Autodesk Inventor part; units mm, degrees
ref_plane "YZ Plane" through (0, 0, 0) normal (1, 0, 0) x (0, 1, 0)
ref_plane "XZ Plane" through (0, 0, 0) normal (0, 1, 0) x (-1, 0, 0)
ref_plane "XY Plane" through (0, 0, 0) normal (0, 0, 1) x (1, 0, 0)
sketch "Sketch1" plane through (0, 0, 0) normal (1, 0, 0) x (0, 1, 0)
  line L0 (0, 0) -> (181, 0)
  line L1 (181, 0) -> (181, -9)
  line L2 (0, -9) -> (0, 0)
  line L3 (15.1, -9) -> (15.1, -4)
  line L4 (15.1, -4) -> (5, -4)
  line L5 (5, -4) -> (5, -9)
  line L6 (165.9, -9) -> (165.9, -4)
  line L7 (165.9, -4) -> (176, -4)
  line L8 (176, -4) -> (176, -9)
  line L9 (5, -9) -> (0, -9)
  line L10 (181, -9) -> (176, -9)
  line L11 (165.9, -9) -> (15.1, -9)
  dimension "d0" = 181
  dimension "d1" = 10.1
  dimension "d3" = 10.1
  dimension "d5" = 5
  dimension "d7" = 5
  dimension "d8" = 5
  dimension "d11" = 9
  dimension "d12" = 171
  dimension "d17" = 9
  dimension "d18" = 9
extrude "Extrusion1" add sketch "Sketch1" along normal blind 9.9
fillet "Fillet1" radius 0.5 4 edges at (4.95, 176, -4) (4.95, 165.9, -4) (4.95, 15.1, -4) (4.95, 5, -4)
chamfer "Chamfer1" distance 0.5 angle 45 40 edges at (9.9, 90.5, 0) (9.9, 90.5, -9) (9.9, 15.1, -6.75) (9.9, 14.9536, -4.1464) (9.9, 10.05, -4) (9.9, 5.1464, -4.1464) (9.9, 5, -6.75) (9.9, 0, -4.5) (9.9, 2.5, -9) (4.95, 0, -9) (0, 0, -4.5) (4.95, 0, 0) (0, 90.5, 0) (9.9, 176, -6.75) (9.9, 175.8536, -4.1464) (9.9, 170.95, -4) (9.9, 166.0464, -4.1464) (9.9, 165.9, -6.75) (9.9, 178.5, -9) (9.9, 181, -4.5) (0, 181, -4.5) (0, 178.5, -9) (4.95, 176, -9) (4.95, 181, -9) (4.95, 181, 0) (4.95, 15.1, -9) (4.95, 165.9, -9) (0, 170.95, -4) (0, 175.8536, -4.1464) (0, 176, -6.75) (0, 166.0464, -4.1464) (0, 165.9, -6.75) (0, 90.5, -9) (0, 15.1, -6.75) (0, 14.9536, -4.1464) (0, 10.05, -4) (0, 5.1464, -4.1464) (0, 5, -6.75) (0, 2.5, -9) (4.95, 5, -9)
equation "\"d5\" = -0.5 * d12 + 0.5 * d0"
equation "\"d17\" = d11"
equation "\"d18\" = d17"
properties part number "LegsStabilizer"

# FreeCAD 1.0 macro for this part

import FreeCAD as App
import Part
import Sketcher


def edges_at(feature, points):
    """Names of the edges that pass closest to the given points."""
    edges = feature.Shape.Edges
    near = lambda p: min(range(len(edges)), key=lambda i: edges[i].distToShape(Part.Vertex(*p))[0])
    return sorted({f"Edge{near(p) + 1}" for p in points})


def add_polygon(sketch, points):
    """Adds a closed chain of lines whose ends are joined by coincident constraints."""
    first, n = sketch.GeometryCount, len(points)
    for a, b in zip(points, points[1:] + points[:1]):
        sketch.addGeometry(Part.LineSegment(App.Vector(*a, 0), App.Vector(*b, 0)), False)
    for i in range(n):
        sketch.addConstraint(Sketcher.Constraint("Coincident", first + i, 2, first + (i + 1) % n, 1))

doc = App.newDocument("Part")
body = doc.addObject("PartDesign::Body", "Body")

sketch1 = body.newObject("Sketcher::SketchObject", "Sketch")
sketch1.AttachmentSupport = (doc.getObject("YZ_Plane"), [""])
sketch1.MapMode = "FlatFace"
add_polygon(sketch1, [(181, 0), (0, 0), (0, -9), (5, -9), (5, -4), (15, -4), (15, -9), (166, -9), (166, -4), (176, -4), (176, -9), (181, -9)])
sketch1.addConstraint([
    Sketcher.Constraint("Horizontal", 0),
    Sketcher.Constraint("Vertical", 1),
    Sketcher.Constraint("Horizontal", 2),
    Sketcher.Constraint("Vertical", 3),
    Sketcher.Constraint("Horizontal", 4),
    Sketcher.Constraint("Vertical", 5),
    Sketcher.Constraint("Horizontal", 6),
    Sketcher.Constraint("Vertical", 7),
    Sketcher.Constraint("Horizontal", 8),
    Sketcher.Constraint("Vertical", 9),
    Sketcher.Constraint("Horizontal", 10),
    Sketcher.Constraint("Vertical", 11),
    Sketcher.Constraint("Coincident", 0, 2, -1, 1),
    Sketcher.Constraint("Horizontal", 2, 2, 5, 2),
    Sketcher.Constraint("Horizontal", 4, 2, 7, 2),
    Sketcher.Constraint("Horizontal", 6, 2, 9, 2),
    Sketcher.Constraint("Equal", 4, 8),
    Sketcher.Constraint("Equal", 2, 10),
    Sketcher.Constraint("Equal", 10, 3),
    Sketcher.Constraint("DistanceX", 0, 2, 0, 1, 181.0),
    Sketcher.Constraint("DistanceX", 2, 1, 2, 2, 5.0),
    Sketcher.Constraint("DistanceY", 1, 2, 1, 1, 9.0),
    Sketcher.Constraint("DistanceX", 4, 1, 4, 2, 10.1),
])
pad1 = body.newObject("PartDesign::Pad", "Pad")
pad1.Profile = sketch1
pad1.Length = 9.9
doc.recompute()

fillet = body.newObject("PartDesign::Fillet", "Fillet")
fillet.Base = (pad1, edges_at(pad1, [
    (4.95, 176, -4),
    (4.95, 165.9, -4),
    (4.95, 15.1, -4),
    (4.95, 5, -4),
]))
fillet.Radius = 0.5
doc.recompute()

chamfer = body.newObject("PartDesign::Chamfer", "Chamfer")
chamfer.Base = (fillet, ["Edge1"])
chamfer.UseAllEdges = True
chamfer.Size = 0.5

doc.recompute()
